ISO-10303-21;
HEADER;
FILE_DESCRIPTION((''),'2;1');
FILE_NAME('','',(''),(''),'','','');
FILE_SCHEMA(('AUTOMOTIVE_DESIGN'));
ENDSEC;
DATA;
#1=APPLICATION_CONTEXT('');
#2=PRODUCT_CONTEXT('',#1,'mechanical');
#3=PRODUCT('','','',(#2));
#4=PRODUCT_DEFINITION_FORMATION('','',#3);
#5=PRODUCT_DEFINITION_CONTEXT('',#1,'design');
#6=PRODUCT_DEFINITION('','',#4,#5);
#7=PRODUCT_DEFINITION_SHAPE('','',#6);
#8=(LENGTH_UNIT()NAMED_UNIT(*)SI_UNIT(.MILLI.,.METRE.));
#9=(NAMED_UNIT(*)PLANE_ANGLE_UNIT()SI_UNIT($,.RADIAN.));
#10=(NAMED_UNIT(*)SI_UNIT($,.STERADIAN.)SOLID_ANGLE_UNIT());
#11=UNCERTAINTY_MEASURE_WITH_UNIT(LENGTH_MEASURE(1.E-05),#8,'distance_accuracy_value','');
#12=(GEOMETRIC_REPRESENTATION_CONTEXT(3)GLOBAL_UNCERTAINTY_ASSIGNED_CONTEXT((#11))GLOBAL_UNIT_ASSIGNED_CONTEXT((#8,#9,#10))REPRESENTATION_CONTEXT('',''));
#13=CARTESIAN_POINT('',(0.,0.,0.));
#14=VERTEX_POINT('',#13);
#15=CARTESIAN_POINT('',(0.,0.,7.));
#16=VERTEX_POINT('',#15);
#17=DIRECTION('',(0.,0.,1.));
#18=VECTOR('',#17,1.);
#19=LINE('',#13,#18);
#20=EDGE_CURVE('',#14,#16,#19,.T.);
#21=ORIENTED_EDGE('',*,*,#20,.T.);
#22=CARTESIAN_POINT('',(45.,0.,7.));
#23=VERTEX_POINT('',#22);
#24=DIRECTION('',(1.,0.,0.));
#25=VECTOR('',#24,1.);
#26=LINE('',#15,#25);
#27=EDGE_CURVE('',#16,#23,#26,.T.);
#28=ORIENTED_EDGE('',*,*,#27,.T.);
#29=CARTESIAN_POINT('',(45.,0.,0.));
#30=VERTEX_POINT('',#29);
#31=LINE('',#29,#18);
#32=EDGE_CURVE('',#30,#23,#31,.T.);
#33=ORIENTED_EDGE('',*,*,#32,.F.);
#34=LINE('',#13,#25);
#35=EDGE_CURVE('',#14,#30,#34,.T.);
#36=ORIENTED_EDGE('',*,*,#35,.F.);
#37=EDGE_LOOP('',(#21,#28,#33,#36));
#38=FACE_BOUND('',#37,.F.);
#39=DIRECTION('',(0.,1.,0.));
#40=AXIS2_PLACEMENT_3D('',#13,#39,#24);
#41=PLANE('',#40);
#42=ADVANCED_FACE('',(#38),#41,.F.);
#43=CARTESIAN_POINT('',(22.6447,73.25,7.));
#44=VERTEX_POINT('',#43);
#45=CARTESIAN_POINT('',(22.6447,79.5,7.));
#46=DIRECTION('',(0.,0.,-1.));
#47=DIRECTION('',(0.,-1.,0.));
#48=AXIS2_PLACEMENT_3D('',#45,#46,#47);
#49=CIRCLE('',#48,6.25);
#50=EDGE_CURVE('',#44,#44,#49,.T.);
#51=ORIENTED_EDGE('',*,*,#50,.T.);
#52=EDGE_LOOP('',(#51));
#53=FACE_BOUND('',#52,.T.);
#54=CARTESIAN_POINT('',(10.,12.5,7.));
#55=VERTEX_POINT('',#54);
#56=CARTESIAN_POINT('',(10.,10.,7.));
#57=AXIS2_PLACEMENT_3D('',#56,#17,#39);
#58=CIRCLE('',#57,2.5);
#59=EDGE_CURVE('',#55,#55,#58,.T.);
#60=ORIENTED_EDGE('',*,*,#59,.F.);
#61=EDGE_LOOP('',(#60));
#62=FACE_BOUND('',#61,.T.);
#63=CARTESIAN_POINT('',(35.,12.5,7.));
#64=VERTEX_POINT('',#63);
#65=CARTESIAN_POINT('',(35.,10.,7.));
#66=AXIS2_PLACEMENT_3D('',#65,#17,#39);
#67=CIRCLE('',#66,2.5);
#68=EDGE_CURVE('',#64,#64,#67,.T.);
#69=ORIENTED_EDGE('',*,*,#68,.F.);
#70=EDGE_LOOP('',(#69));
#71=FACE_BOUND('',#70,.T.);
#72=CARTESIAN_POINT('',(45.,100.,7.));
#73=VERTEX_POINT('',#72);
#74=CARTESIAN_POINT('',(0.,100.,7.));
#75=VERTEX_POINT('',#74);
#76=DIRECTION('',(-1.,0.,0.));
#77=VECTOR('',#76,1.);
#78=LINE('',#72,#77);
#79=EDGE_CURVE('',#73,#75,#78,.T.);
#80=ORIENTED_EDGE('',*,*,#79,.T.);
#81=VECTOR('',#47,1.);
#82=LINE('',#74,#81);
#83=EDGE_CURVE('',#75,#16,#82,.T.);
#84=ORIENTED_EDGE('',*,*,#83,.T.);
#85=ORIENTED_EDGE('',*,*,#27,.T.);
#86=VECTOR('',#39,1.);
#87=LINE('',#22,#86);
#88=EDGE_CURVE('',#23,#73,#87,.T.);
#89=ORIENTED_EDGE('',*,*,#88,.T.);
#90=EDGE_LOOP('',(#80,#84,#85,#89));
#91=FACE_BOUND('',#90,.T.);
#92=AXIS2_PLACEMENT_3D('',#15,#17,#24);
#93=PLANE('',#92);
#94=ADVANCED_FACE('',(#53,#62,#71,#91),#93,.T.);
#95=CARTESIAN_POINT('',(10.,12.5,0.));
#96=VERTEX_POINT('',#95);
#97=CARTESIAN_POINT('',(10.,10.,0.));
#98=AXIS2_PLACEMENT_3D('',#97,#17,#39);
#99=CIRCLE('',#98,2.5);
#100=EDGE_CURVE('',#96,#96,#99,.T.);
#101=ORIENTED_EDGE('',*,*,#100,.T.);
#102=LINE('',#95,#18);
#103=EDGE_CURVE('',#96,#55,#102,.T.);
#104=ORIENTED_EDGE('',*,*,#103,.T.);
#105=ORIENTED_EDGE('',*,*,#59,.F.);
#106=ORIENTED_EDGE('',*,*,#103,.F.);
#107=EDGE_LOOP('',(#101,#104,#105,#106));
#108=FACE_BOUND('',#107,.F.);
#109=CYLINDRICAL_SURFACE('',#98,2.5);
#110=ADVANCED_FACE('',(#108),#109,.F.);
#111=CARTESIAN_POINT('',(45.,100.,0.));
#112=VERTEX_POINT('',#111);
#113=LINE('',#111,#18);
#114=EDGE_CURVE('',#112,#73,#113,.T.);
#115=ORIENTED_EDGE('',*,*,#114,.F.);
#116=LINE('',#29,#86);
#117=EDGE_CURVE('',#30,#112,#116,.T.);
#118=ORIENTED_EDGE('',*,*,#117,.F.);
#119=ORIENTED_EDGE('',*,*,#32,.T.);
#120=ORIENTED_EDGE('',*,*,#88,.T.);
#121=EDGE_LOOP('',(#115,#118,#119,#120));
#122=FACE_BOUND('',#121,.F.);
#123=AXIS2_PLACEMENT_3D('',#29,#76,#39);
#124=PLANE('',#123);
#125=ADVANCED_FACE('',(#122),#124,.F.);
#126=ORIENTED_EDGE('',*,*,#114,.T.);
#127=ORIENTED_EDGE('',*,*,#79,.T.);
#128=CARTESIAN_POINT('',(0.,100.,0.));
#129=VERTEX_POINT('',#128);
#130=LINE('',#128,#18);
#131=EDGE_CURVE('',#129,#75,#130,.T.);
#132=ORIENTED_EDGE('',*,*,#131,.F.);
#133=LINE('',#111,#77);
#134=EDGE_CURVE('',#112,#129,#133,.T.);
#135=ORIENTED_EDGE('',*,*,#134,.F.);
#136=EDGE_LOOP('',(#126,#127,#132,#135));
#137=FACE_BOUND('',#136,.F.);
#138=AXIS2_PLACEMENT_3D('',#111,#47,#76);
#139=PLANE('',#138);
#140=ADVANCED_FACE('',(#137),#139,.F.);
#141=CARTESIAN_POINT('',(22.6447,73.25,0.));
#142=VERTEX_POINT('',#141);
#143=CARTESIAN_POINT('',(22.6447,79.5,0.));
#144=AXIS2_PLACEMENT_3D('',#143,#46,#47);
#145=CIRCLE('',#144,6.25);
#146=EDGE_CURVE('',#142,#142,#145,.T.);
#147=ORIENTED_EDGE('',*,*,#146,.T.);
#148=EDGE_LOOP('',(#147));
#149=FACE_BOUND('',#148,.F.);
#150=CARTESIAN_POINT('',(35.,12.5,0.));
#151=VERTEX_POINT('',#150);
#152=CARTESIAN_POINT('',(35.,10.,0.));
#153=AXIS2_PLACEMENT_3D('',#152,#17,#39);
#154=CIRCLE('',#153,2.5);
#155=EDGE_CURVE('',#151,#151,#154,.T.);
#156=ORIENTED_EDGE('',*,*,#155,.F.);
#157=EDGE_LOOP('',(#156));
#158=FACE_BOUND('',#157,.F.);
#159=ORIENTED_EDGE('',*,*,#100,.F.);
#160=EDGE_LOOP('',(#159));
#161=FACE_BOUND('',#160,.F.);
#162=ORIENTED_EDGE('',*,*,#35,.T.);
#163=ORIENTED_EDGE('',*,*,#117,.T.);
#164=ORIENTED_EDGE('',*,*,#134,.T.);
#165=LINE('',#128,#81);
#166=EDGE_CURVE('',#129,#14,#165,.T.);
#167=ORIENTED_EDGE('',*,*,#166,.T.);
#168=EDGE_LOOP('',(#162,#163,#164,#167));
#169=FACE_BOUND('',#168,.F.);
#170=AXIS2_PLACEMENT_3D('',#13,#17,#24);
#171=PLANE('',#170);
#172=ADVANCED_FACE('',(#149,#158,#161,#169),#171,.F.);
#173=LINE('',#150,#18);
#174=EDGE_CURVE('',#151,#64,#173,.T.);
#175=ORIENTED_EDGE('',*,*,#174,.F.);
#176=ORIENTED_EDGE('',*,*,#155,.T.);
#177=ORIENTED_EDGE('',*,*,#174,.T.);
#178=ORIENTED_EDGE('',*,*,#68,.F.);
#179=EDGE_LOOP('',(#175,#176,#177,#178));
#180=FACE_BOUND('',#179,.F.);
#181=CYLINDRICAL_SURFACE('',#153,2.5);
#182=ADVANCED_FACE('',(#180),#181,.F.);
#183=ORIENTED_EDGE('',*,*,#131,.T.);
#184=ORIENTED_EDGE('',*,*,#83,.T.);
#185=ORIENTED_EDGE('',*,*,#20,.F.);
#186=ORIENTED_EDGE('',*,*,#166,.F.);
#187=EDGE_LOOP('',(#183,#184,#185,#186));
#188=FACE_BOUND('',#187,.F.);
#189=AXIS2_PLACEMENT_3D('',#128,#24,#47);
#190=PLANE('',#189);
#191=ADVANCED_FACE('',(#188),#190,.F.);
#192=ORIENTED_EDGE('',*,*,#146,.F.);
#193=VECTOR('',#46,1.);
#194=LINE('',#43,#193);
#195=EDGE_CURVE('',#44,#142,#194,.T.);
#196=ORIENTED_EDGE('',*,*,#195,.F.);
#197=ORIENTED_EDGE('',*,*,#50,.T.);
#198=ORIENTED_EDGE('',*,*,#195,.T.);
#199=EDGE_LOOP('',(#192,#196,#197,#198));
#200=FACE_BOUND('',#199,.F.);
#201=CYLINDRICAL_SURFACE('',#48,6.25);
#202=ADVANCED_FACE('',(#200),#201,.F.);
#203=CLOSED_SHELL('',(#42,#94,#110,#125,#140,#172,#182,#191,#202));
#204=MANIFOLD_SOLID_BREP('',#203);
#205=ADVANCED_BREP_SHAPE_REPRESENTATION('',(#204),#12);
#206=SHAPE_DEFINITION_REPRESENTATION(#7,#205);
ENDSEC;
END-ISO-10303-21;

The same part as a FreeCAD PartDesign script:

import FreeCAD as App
import Part
import Sketcher

doc = App.newDocument("Part")
params = doc.addObject("Spreadsheet::Sheet", "Params")
for row, (alias, value) in enumerate([
    ("sketch1_width", "45 mm"),
    ("sketch1_height", "100 mm"),
    ("pad1_length", "7 mm"),
    ("sketch2_diameter", "12.5 mm"),
    ("hole_diameter", "12.5 mm"),
    ("sketch3_diameter", "5 mm"),
    ("hole2_diameter", "5 mm"),
], start=1):
    params.set(f"A{row}", alias)
    params.set(f"B{row}", "=" + value)
    params.setAlias(f"B{row}", alias)

body = doc.addObject("PartDesign::Body", "Body")

# Sketch on XY plane
sketch1 = body.newObject("Sketcher::SketchObject", "Sketch")
sketch1.AttachmentSupport = (doc.getObject("XY_Plane"), [""])
sketch1.MapMode = "FlatFace"
sketch1.addGeometry([
    Part.LineSegment(App.Vector(0, 100, 0), App.Vector(0, 0, 0)),
    Part.LineSegment(App.Vector(0, 0, 0), App.Vector(45, 0, 0)),
    Part.LineSegment(App.Vector(45, 0, 0), App.Vector(45, 100, 0)),
    Part.LineSegment(App.Vector(45, 100, 0), App.Vector(0, 100, 0)),
], False)
sketch1.addConstraint([
    Sketcher.Constraint("Coincident", 0, 2, 1, 1),
    Sketcher.Constraint("Coincident", 1, 2, 2, 1),
    Sketcher.Constraint("Coincident", 2, 2, 3, 1),
    Sketcher.Constraint("Coincident", 3, 2, 0, 1),
    Sketcher.Constraint("Vertical", 0),
    Sketcher.Constraint("Horizontal", 1),
    Sketcher.Constraint("Vertical", 2),
    Sketcher.Constraint("Horizontal", 3),
    Sketcher.Constraint("Coincident", 0, 2, -1, 1),
    Sketcher.Constraint("DistanceX", 1, 1, 1, 2, 45.0),
    Sketcher.Constraint("DistanceY", 0, 2, 0, 1, 100.0),
])
sketch1.setExpression("Constraints[9]", "Params.sketch1_width")
sketch1.setExpression("Constraints[10]", "Params.sketch1_height")
pad1 = body.newObject("PartDesign::Pad", "Pad")
pad1.Profile = sketch1
pad1.setExpression("Length", "Params.pad1_length")

# Sketch on XY plane
sketch2 = body.newObject("Sketcher::SketchObject", "Sketch001")
sketch2.AttachmentSupport = (doc.getObject("XY_Plane"), [""])
sketch2.MapMode = "FlatFace"
sketch2.AttachmentOffset = App.Placement(App.Vector(0, 0, 7), App.Rotation())
sketch2.addGeometry(Part.Circle(App.Vector(22.6447, 79.5, 0), App.Vector(0, 0, 1), 6.25), False)
sketch2.addConstraint([
    Sketcher.Constraint("Diameter", 0, 12.5),
    Sketcher.Constraint("DistanceY", -1, 1, 0, 3, 79.5),
    Sketcher.Constraint("DistanceX", -1, 1, 0, 3, 22.6447),
])
sketch2.setExpression("Constraints[0]", "Params.sketch2_diameter")
doc.recompute()
hole = body.newObject("PartDesign::Hole", "Hole")
hole.Profile = sketch2
hole.ThreadType = "None"
hole.setExpression("Diameter", "Params.hole_diameter")
hole.DepthType = "ThroughAll"

# Sketch on XY plane
sketch3 = body.newObject("Sketcher::SketchObject", "Sketch002")
sketch3.AttachmentSupport = (doc.getObject("XY_Plane"), [""])
sketch3.MapMode = "FlatFace"
sketch3.addGeometry([
    Part.Circle(App.Vector(10, 10, 0), App.Vector(0, 0, 1), 2.5),
    Part.Circle(App.Vector(35, 10, 0), App.Vector(0, 0, 1), 2.5),
], False)
sketch3.addConstraint([
    Sketcher.Constraint("Equal", 0, 1),
    Sketcher.Constraint("Horizontal", 0, 3, 1, 3),
    Sketcher.Constraint("Diameter", 0, 5.0),
    Sketcher.Constraint("DistanceX", -1, 1, 0, 3, 10.0),
    Sketcher.Constraint("DistanceY", -1, 1, 0, 3, 10.0),
    Sketcher.Constraint("DistanceX", -1, 1, 1, 3, 35.0),
])
sketch3.setExpression("Constraints[2]", "Params.sketch3_diameter")
doc.recompute()
hole2 = body.newObject("PartDesign::Hole", "Hole001")
hole2.Profile = sketch3
hole2.ThreadType = "None"
hole2.setExpression("Diameter", "Params.hole2_diameter")
hole2.DepthType = "ThroughAll"
hole2.Reversed = True

doc.recompute()
